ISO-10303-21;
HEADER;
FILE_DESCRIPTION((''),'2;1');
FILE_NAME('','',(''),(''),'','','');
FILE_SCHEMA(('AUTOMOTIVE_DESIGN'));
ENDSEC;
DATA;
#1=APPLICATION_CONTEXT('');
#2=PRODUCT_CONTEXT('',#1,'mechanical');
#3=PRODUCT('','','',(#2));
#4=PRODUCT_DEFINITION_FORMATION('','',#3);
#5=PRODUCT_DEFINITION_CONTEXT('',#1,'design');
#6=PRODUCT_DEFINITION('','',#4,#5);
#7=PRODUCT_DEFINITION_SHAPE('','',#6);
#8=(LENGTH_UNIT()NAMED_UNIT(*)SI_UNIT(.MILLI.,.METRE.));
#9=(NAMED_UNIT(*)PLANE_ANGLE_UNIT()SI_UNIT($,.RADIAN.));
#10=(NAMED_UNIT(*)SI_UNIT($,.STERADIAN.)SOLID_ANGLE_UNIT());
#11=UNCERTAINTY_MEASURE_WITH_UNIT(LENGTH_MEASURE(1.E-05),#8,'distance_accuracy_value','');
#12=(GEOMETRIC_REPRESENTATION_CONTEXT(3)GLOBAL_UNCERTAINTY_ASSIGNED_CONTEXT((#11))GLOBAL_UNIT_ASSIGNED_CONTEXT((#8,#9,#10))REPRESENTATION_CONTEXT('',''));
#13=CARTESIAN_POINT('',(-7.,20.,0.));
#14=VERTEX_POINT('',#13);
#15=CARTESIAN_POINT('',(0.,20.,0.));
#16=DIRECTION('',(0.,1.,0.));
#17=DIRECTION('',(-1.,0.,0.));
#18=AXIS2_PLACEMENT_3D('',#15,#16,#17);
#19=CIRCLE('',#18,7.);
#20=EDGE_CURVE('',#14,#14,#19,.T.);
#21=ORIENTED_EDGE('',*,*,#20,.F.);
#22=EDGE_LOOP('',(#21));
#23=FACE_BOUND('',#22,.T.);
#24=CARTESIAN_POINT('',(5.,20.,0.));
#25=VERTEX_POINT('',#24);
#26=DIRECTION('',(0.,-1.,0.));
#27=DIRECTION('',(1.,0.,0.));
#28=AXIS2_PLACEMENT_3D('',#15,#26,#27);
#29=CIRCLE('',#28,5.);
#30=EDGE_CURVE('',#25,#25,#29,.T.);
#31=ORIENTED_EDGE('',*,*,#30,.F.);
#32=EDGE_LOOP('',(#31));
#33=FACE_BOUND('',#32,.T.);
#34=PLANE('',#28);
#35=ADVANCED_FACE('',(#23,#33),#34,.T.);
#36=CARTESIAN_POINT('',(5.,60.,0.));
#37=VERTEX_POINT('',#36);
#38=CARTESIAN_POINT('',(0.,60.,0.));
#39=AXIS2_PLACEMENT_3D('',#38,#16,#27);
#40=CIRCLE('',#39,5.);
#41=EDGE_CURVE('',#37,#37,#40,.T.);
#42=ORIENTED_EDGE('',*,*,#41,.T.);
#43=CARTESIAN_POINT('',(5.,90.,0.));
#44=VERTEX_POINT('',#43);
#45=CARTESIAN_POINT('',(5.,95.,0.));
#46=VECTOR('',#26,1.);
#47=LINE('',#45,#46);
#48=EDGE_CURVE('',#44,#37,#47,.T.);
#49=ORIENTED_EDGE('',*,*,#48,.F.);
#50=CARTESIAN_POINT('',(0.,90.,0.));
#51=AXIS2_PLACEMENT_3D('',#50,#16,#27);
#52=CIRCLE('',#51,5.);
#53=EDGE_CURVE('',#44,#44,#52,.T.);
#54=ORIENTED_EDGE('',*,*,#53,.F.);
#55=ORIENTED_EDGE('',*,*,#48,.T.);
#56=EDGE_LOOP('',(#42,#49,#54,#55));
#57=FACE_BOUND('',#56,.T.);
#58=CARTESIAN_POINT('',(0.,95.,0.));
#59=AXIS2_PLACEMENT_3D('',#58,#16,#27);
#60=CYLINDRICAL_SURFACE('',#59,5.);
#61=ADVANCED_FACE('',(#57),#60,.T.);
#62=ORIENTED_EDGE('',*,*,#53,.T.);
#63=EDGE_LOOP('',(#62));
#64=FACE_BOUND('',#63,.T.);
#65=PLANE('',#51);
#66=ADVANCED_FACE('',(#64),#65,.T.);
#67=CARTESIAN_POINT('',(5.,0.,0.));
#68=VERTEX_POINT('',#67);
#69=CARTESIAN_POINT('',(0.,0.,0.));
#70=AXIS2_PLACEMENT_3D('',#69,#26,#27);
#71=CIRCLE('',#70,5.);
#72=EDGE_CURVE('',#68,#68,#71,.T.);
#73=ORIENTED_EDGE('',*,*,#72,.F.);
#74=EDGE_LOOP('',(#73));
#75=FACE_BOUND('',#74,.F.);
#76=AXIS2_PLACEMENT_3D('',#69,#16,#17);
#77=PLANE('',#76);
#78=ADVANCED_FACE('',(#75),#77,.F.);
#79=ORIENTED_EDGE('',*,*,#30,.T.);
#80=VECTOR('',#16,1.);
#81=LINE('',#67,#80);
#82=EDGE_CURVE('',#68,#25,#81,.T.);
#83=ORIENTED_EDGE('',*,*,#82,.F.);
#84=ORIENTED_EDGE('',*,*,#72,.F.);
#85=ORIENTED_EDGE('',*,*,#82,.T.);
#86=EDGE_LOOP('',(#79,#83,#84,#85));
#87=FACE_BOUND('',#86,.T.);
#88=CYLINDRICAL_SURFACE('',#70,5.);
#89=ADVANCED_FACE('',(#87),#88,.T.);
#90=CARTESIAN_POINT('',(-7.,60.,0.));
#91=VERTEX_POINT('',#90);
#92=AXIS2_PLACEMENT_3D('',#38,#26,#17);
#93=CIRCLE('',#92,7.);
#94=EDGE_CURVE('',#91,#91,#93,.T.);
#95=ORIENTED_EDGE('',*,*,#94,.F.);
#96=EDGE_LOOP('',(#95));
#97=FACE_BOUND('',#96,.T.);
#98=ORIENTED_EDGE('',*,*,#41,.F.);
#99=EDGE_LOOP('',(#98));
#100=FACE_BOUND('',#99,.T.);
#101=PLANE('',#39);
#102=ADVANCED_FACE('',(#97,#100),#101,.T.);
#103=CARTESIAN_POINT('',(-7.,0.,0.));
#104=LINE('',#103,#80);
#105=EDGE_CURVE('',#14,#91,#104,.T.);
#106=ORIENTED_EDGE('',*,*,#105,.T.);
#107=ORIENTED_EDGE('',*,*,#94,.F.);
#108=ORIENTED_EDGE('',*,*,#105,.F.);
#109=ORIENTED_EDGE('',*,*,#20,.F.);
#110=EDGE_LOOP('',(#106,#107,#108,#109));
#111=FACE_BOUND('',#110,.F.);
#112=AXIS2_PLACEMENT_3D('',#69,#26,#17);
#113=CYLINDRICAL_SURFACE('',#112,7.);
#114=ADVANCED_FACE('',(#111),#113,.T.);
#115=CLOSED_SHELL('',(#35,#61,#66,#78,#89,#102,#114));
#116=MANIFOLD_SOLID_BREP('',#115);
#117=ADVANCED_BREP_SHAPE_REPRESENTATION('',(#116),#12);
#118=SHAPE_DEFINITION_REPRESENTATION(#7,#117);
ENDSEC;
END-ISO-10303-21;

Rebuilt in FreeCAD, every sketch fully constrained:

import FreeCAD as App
import Part
import Sketcher
Q = App.Units.Quantity

doc = App.newDocument("Part")
body = doc.addObject("PartDesign::Body", "Body")

sketch1 = body.newObject("Sketcher::SketchObject", "Sketch")
sketch1.AttachmentSupport = (doc.getObject("XZ_Plane"), [""])
sketch1.MapMode = "FlatFace"
sketch1.addGeometry(Part.Circle(App.Vector(0, 0, 0), App.Vector(0, 0, 1), 7), False)
sketch1.addConstraint([
    Sketcher.Constraint("Coincident", 0, 3, -1, 1),
    Sketcher.Constraint("Diameter", 0, Q("14 mm")),
])
pad1 = body.newObject("PartDesign::Pad", "Pad")
pad1.Profile = sketch1
pad1.Length = 95
pad1.Reversed = True

sketch2 = body.newObject("Sketcher::SketchObject", "Sketch001")
sketch2.AttachmentSupport = (doc.getObject("XZ_Plane"), [""])
sketch2.MapMode = "FlatFace"
sketch2.addGeometry([
    Part.Circle(App.Vector(0, 0, 0), App.Vector(0, 0, 1), 7),
    Part.Circle(App.Vector(0, 0, 0), App.Vector(0, 0, 1), 5),
], False)
sketch2.addConstraint([
    Sketcher.Constraint("Coincident", 0, 3, -1, 1),
    Sketcher.Constraint("Coincident", 1, 3, -1, 1),
    Sketcher.Constraint("Diameter", 1, Q("10 mm")),
    Sketcher.Constraint("Diameter", 0, Q("14 mm")),
])
pocket1 = body.newObject("PartDesign::Pocket", "Pocket")
pocket1.Profile = sketch2
pocket1.Length = 20

sketch3 = body.newObject("Sketcher::SketchObject", "Sketch002")
sketch3.AttachmentSupport = (doc.getObject("XZ_Plane"), [""])
sketch3.MapMode = "FlatFace"
sketch3.AttachmentOffset = App.Placement(App.Vector(0, 0, -95), App.Rotation())
sketch3.addGeometry([
    Part.Circle(App.Vector(0, 0, 0), App.Vector(0, 0, 1), 7),
    Part.Circle(App.Vector(0, 0, 0), App.Vector(0, 0, 1), 5),
], False)
sketch3.addConstraint([
    Sketcher.Constraint("Coincident", 0, 3, -1, 1),
    Sketcher.Constraint("Coincident", 1, 3, -1, 1),
    Sketcher.Constraint("Diameter", 0, Q("14 mm")),
    Sketcher.Constraint("Diameter", 1, Q("10 mm")),
])
pocket2 = body.newObject("PartDesign::Pocket", "Pocket001")
pocket2.Profile = sketch3
pocket2.Length = 35
pocket2.Reversed = True

sketch4 = body.newObject("Sketcher::SketchObject", "Sketch003")
sketch4.AttachmentSupport = (doc.getObject("XZ_Plane"), [""])
sketch4.MapMode = "FlatFace"
sketch4.AttachmentOffset = App.Placement(App.Vector(0, 0, -95), App.Rotation())
sketch4.addGeometry(Part.Circle(App.Vector(0, 0, 0), App.Vector(0, 0, 1), 5), False)
sketch4.addConstraint([
    Sketcher.Constraint("Coincident", 0, 3, -1, 1),
    Sketcher.Constraint("Diameter", 0, Q("10 mm")),
])
pocket3 = body.newObject("PartDesign::Pocket", "Pocket002")
pocket3.Profile = sketch4
pocket3.Length = 5
pocket3.Reversed = True

doc.recompute()
